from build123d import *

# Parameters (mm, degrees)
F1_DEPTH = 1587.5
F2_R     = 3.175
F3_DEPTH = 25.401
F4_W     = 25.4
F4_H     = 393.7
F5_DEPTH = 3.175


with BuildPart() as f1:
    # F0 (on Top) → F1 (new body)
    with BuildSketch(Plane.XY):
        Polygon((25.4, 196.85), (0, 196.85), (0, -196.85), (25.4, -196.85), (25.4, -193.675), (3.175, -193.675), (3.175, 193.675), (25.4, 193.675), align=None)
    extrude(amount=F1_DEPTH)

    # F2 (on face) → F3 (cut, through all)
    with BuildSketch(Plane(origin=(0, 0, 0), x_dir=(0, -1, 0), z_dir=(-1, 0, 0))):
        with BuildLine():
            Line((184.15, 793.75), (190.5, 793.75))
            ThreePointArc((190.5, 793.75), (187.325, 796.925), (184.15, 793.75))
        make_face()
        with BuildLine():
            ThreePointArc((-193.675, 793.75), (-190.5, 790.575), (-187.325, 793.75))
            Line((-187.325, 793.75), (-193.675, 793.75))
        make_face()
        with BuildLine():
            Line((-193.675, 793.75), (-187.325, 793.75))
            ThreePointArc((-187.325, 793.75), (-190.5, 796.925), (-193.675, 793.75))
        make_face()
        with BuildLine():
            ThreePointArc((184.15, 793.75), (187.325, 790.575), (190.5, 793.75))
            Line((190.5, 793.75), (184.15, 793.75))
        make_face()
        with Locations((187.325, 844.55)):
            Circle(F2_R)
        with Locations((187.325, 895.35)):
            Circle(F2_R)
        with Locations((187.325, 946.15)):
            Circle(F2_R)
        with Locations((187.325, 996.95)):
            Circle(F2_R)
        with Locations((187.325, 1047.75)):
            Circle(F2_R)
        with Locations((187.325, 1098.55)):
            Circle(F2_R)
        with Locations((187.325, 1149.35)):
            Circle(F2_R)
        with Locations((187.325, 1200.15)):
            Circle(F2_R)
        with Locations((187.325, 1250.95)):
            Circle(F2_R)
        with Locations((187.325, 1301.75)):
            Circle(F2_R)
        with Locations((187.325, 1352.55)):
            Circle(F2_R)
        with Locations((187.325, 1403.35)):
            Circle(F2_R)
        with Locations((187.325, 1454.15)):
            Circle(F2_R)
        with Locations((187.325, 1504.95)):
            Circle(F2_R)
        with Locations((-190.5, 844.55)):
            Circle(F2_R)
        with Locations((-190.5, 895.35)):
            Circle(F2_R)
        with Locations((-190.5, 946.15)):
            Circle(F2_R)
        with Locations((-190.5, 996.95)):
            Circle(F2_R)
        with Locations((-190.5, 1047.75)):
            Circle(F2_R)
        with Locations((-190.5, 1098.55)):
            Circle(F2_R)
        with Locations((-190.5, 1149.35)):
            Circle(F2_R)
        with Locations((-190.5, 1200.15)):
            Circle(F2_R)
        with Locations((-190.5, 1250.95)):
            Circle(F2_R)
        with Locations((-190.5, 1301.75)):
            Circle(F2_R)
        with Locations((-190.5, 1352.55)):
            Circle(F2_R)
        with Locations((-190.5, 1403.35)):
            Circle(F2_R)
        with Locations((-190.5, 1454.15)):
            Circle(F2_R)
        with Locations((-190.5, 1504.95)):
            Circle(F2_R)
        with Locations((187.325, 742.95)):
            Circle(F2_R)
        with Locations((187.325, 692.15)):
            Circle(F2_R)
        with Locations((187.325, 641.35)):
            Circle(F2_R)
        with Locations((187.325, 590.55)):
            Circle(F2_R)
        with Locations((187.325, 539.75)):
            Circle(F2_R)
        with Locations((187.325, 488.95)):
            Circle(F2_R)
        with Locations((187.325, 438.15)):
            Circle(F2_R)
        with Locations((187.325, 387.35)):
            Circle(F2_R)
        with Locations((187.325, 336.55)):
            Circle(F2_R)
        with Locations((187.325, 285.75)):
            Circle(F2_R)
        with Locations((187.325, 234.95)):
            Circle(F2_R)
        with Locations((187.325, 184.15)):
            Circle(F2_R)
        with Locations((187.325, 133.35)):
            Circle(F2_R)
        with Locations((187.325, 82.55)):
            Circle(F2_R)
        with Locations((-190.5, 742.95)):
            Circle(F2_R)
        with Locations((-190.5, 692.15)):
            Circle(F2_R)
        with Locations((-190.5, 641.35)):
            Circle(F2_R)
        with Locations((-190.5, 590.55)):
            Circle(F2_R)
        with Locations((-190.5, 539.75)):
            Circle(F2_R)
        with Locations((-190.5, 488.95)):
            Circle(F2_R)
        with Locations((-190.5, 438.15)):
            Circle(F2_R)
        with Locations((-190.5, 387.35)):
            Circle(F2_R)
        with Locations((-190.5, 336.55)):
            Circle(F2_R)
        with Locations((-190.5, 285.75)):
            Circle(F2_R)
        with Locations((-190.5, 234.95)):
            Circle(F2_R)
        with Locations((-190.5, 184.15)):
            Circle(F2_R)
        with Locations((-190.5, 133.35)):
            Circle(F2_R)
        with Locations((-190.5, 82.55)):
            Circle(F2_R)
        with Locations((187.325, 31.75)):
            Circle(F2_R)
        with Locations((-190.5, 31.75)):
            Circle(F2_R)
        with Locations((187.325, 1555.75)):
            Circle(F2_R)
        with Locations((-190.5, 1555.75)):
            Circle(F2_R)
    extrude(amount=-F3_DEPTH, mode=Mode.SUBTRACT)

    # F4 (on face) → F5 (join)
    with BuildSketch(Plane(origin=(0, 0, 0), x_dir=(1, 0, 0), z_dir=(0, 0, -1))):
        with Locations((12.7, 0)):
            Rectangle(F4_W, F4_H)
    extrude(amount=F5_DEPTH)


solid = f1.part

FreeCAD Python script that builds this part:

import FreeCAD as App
import Part
import Sketcher

V = App.Vector
Q = App.Units.Quantity


def add_polygon(sketch, points):
    """Adds a closed chain of lines whose ends are joined by coincident constraints."""
    first, n = sketch.GeometryCount, len(points)
    for a, b in zip(points, points[1:] + points[:1]):
        sketch.addGeometry(Part.LineSegment(App.Vector(*a, 0), App.Vector(*b, 0)), False)
    for i in range(n):
        sketch.addConstraint(Sketcher.Constraint("Coincident", first + i, 2, first + (i + 1) % n, 1))

doc = App.newDocument("Part")
body = doc.addObject("PartDesign::Body", "Body")

# Sketch on XY plane
sketch1 = doc.addObject("Sketcher::SketchObject", "Sketch")
body.addObject(sketch1)
sketch1.AttachmentSupport = (doc.XY_Plane, [""])
sketch1.MapMode = "FlatFace"
add_polygon(sketch1, [(25.4, 196.8), (0, 196.8), (0, -196.8), (25.4, -196.8), (25.4, -193.7), (3.2, -193.7), (3.2, 193.7), (25.4, 193.7)])  # lines 0-7
sketch1.addConstraint(Sketcher.Constraint("Horizontal", 0))
sketch1.addConstraint(Sketcher.Constraint("Vertical", 1))
sketch1.addConstraint(Sketcher.Constraint("Horizontal", 2))
sketch1.addConstraint(Sketcher.Constraint("Vertical", 3))
sketch1.addConstraint(Sketcher.Constraint("Horizontal", 4))
sketch1.addConstraint(Sketcher.Constraint("Vertical", 5))
sketch1.addConstraint(Sketcher.Constraint("Horizontal", 6))
sketch1.addConstraint(Sketcher.Constraint("Vertical", 7))
sketch1.addConstraint(Sketcher.Constraint("Symmetric", 0, 2, 1, 2, -1, 1))
sketch1.addConstraint(Sketcher.Constraint("Symmetric", 3, 2, 6, 2, -1))
sketch1.addConstraint(Sketcher.Constraint("DistanceX", 0, 2, 0, 1, Q("1 in")))
sketch1.addConstraint(Sketcher.Constraint("DistanceY", 1, 2, 1, 1, Q("15.5 in")))
sketch1.addConstraint(Sketcher.Constraint("DistanceY", 5, 1, 5, 2, Q("15.25 in")))
sketch1.addConstraint(Sketcher.Constraint("DistanceX", 4, 2, 4, 1, Q("0.875 in")))
pad1 = doc.addObject("PartDesign::Pad", "Pad")
body.addObject(pad1)
pad1.Profile = sketch1
pad1.Length = Q("62.5 in")

# Sketch on YZ plane
sketch2 = doc.addObject("Sketcher::SketchObject", "Sketch001")
body.addObject(sketch2)
sketch2.AttachmentSupport = (doc.YZ_Plane, [""])
sketch2.MapMode = "FlatFace"
sketch2.addGeometry(Part.Circle(V(-187.3, 793.8, 0), V(0, 0, 1), 3.2), False)
sketch2.addGeometry(Part.Circle(V(190.5, 793.8, 0), V(0, 0, 1), 3.2), False)
sketch2.addGeometry(Part.Circle(V(-187.3, 844.5, 0), V(0, 0, 1), 3.2), False)
sketch2.addGeometry(Part.Circle(V(-187.3, 895.4, 0), V(0, 0, 1), 3.2), False)
sketch2.addGeometry(Part.Circle(V(-187.3, 946.1, 0), V(0, 0, 1), 3.2), False)
sketch2.addGeometry(Part.Circle(V(-187.3, 997, 0), V(0, 0, 1), 3.2), False)
sketch2.addGeometry(Part.Circle(V(-187.3, 1047.8, 0), V(0, 0, 1), 3.2), False)
sketch2.addGeometry(Part.Circle(V(-187.3, 1098.5, 0), V(0, 0, 1), 3.2), False)
sketch2.addGeometry(Part.Circle(V(-187.3, 1149.3, 0), V(0, 0, 1), 3.2), False)
sketch2.addGeometry(Part.Circle(V(-187.3, 1200.2, 0), V(0, 0, 1), 3.2), False)
sketch2.addGeometry(Part.Circle(V(-187.3, 1251, 0), V(0, 0, 1), 3.2), False)
sketch2.addGeometry(Part.Circle(V(-187.3, 1301.8, 0), V(0, 0, 1), 3.2), False)
sketch2.addGeometry(Part.Circle(V(-187.3, 1352.5, 0), V(0, 0, 1), 3.2), False)
sketch2.addGeometry(Part.Circle(V(-187.3, 1403.3, 0), V(0, 0, 1), 3.2), False)
sketch2.addGeometry(Part.Circle(V(-187.3, 1454.2, 0), V(0, 0, 1), 3.2), False)
sketch2.addGeometry(Part.Circle(V(-187.3, 1505, 0), V(0, 0, 1), 3.2), False)
sketch2.addGeometry(Part.Circle(V(190.5, 844.5, 0), V(0, 0, 1), 3.2), False)
sketch2.addGeometry(Part.Circle(V(190.5, 895.4, 0), V(0, 0, 1), 3.2), False)
sketch2.addGeometry(Part.Circle(V(190.5, 946.1, 0), V(0, 0, 1), 3.2), False)
sketch2.addGeometry(Part.Circle(V(190.5, 997, 0), V(0, 0, 1), 3.2), False)
sketch2.addGeometry(Part.Circle(V(190.5, 1047.8, 0), V(0, 0, 1), 3.2), False)
sketch2.addGeometry(Part.Circle(V(190.5, 1098.5, 0), V(0, 0, 1), 3.2), False)
sketch2.addGeometry(Part.Circle(V(190.5, 1149.3, 0), V(0, 0, 1), 3.2), False)
sketch2.addGeometry(Part.Circle(V(190.5, 1200.2, 0), V(0, 0, 1), 3.2), False)
sketch2.addGeometry(Part.Circle(V(190.5, 1251, 0), V(0, 0, 1), 3.2), False)
sketch2.addGeometry(Part.Circle(V(190.5, 1301.8, 0), V(0, 0, 1), 3.2), False)
sketch2.addGeometry(Part.Circle(V(190.5, 1352.5, 0), V(0, 0, 1), 3.2), False)
sketch2.addGeometry(Part.Circle(V(190.5, 1403.3, 0), V(0, 0, 1), 3.2), False)
sketch2.addGeometry(Part.Circle(V(190.5, 1454.2, 0), V(0, 0, 1), 3.2), False)
sketch2.addGeometry(Part.Circle(V(190.5, 1505, 0), V(0, 0, 1), 3.2), False)
sketch2.addGeometry(Part.Circle(V(-187.3, 743, 0), V(0, 0, 1), 3.2), False)
sketch2.addGeometry(Part.Circle(V(-187.3, 692.1, 0), V(0, 0, 1), 3.2), False)
sketch2.addGeometry(Part.Circle(V(-187.3, 641.4, 0), V(0, 0, 1), 3.2), False)
sketch2.addGeometry(Part.Circle(V(-187.3, 590.5, 0), V(0, 0, 1), 3.2), False)
sketch2.addGeometry(Part.Circle(V(-187.3, 539.8, 0), V(0, 0, 1), 3.2), False)
sketch2.addGeometry(Part.Circle(V(-187.3, 488.9, 0), V(0, 0, 1), 3.2), False)
sketch2.addGeometry(Part.Circle(V(-187.3, 438.1, 0), V(0, 0, 1), 3.2), False)
sketch2.addGeometry(Part.Circle(V(-187.3, 387.4, 0), V(0, 0, 1), 3.2), False)
sketch2.addGeometry(Part.Circle(V(-187.3, 336.6, 0), V(0, 0, 1), 3.2), False)
sketch2.addGeometry(Part.Circle(V(-187.3, 285.8, 0), V(0, 0, 1), 3.2), False)
sketch2.addGeometry(Part.Circle(V(-187.3, 234.9, 0), V(0, 0, 1), 3.2), False)
sketch2.addGeometry(Part.Circle(V(-187.3, 184.2, 0), V(0, 0, 1), 3.2), False)
sketch2.addGeometry(Part.Circle(V(-187.3, 133.3, 0), V(0, 0, 1), 3.2), False)
sketch2.addGeometry(Part.Circle(V(-187.3, 82.5, 0), V(0, 0, 1), 3.2), False)
sketch2.addGeometry(Part.Circle(V(190.5, 743, 0), V(0, 0, 1), 3.2), False)
sketch2.addGeometry(Part.Circle(V(190.5, 692.1, 0), V(0, 0, 1), 3.2), False)
sketch2.addGeometry(Part.Circle(V(190.5, 641.4, 0), V(0, 0, 1), 3.2), False)
sketch2.addGeometry(Part.Circle(V(190.5, 590.5, 0), V(0, 0, 1), 3.2), False)
sketch2.addGeometry(Part.Circle(V(190.5, 539.8, 0), V(0, 0, 1), 3.2), False)
sketch2.addGeometry(Part.Circle(V(190.5, 488.9, 0), V(0, 0, 1), 3.2), False)
sketch2.addGeometry(Part.Circle(V(190.5, 438.1, 0), V(0, 0, 1), 3.2), False)
sketch2.addGeometry(Part.Circle(V(190.5, 387.4, 0), V(0, 0, 1), 3.2), False)
sketch2.addGeometry(Part.Circle(V(190.5, 336.6, 0), V(0, 0, 1), 3.2), False)
sketch2.addGeometry(Part.Circle(V(190.5, 285.8, 0), V(0, 0, 1), 3.2), False)
sketch2.addGeometry(Part.Circle(V(190.5, 234.9, 0), V(0, 0, 1), 3.2), False)
sketch2.addGeometry(Part.Circle(V(190.5, 184.2, 0), V(0, 0, 1), 3.2), False)
sketch2.addGeometry(Part.Circle(V(190.5, 133.3, 0), V(0, 0, 1), 3.2), False)
sketch2.addGeometry(Part.Circle(V(190.5, 82.5, 0), V(0, 0, 1), 3.2), False)
sketch2.addGeometry(Part.Circle(V(-187.3, 31.8, 0), V(0, 0, 1), 3.2), False)
sketch2.addGeometry(Part.Circle(V(190.5, 31.8, 0), V(0, 0, 1), 3.2), False)
sketch2.addGeometry(Part.Circle(V(-187.3, 1555.8, 0), V(0, 0, 1), 3.2), False)
sketch2.addGeometry(Part.Circle(V(190.5, 1555.8, 0), V(0, 0, 1), 3.2), False)
sketch2.addConstraint(Sketcher.Constraint("Equal", 0, 1))
sketch2.addConstraint(Sketcher.Constraint("Equal", 1, 2))
sketch2.addConstraint(Sketcher.Constraint("Equal", 2, 3))
sketch2.addConstraint(Sketcher.Constraint("Equal", 3, 4))
sketch2.addConstraint(Sketcher.Constraint("Equal", 4, 5))
sketch2.addConstraint(Sketcher.Constraint("Equal", 5, 6))
sketch2.addConstraint(Sketcher.Constraint("Equal", 6, 7))
sketch2.addConstraint(Sketcher.Constraint("Equal", 7, 8))
sketch2.addConstraint(Sketcher.Constraint("Equal", 8, 9))
sketch2.addConstraint(Sketcher.Constraint("Equal", 9, 10))
sketch2.addConstraint(Sketcher.Constraint("Equal", 10, 11))
sketch2.addConstraint(Sketcher.Constraint("Equal", 11, 12))
sketch2.addConstraint(Sketcher.Constraint("Equal", 12, 13))
sketch2.addConstraint(Sketcher.Constraint("Equal", 13, 14))
sketch2.addConstraint(Sketcher.Constraint("Equal", 14, 15))
sketch2.addConstraint(Sketcher.Constraint("Equal", 15, 16))
sketch2.addConstraint(Sketcher.Constraint("Equal", 16, 17))
sketch2.addConstraint(Sketcher.Constraint("Equal", 17, 18))
sketch2.addConstraint(Sketcher.Constraint("Equal", 18, 19))
sketch2.addConstraint(Sketcher.Constraint("Equal", 19, 20))
sketch2.addConstraint(Sketcher.Constraint("Equal", 20, 21))
sketch2.addConstraint(Sketcher.Constraint("Equal", 21, 22))
sketch2.addConstraint(Sketcher.Constraint("Equal", 22, 23))
sketch2.addConstraint(Sketcher.Constraint("Equal", 23, 24))
sketch2.addConstraint(Sketcher.Constraint("Equal", 24, 25))
sketch2.addConstraint(Sketcher.Constraint("Equal", 25, 26))
sketch2.addConstraint(Sketcher.Constraint("Equal", 26, 27))
sketch2.addConstraint(Sketcher.Constraint("Equal", 27, 28))
sketch2.addConstraint(Sketcher.Constraint("Equal", 28, 29))
sketch2.addConstraint(Sketcher.Constraint("Equal", 29, 30))
sketch2.addConstraint(Sketcher.Constraint("Equal", 30, 31))
sketch2.addConstraint(Sketcher.Constraint("Equal", 31, 32))
sketch2.addConstraint(Sketcher.Constraint("Equal", 32, 33))
sketch2.addConstraint(Sketcher.Constraint("Equal", 33, 34))
sketch2.addConstraint(Sketcher.Constraint("Equal", 34, 35))
sketch2.addConstraint(Sketcher.Constraint("Equal", 35, 36))
sketch2.addConstraint(Sketcher.Constraint("Equal", 36, 37))
sketch2.addConstraint(Sketcher.Constraint("Equal", 37, 38))
sketch2.addConstraint(Sketcher.Constraint("Equal", 38, 39))
sketch2.addConstraint(Sketcher.Constraint("Equal", 39, 40))
sketch2.addConstraint(Sketcher.Constraint("Equal", 40, 41))
sketch2.addConstraint(Sketcher.Constraint("Equal", 41, 42))
sketch2.addConstraint(Sketcher.Constraint("Equal", 42, 43))
sketch2.addConstraint(Sketcher.Constraint("Equal", 43, 44))
sketch2.addConstraint(Sketcher.Constraint("Equal", 44, 45))
sketch2.addConstraint(Sketcher.Constraint("Equal", 45, 46))
sketch2.addConstraint(Sketcher.Constraint("Equal", 46, 47))
sketch2.addConstraint(Sketcher.Constraint("Equal", 47, 48))
sketch2.addConstraint(Sketcher.Constraint("Equal", 48, 49))
sketch2.addConstraint(Sketcher.Constraint("Equal", 49, 50))
sketch2.addConstraint(Sketcher.Constraint("Equal", 50, 51))
sketch2.addConstraint(Sketcher.Constraint("Equal", 51, 52))
sketch2.addConstraint(Sketcher.Constraint("Equal", 52, 53))
sketch2.addConstraint(Sketcher.Constraint("Equal", 53, 54))
sketch2.addConstraint(Sketcher.Constraint("Equal", 54, 55))
sketch2.addConstraint(Sketcher.Constraint("Equal", 55, 56))
sketch2.addConstraint(Sketcher.Constraint("Equal", 56, 57))
sketch2.addConstraint(Sketcher.Constraint("Equal", 57, 58))
sketch2.addConstraint(Sketcher.Constraint("Equal", 58, 59))
sketch2.addConstraint(Sketcher.Constraint("Equal", 59, 60))
sketch2.addConstraint(Sketcher.Constraint("Equal", 60, 61))
sketch2.addConstraint(Sketcher.Constraint("Horizontal", 0, 3, 1, 3))
sketch2.addConstraint(Sketcher.Constraint("Horizontal", 2, 3, 16, 3))
sketch2.addConstraint(Sketcher.Constraint("Horizontal", 3, 3, 17, 3))
sketch2.addConstraint(Sketcher.Constraint("Horizontal", 4, 3, 18, 3))
sketch2.addConstraint(Sketcher.Constraint("Horizontal", 5, 3, 19, 3))
sketch2.addConstraint(Sketcher.Constraint("Horizontal", 6, 3, 20, 3))
sketch2.addConstraint(Sketcher.Constraint("Horizontal", 7, 3, 21, 3))
sketch2.addConstraint(Sketcher.Constraint("Horizontal", 8, 3, 22, 3))
sketch2.addConstraint(Sketcher.Constraint("Horizontal", 9, 3, 23, 3))
sketch2.addConstraint(Sketcher.Constraint("Horizontal", 10, 3, 24, 3))
sketch2.addConstraint(Sketcher.Constraint("Horizontal", 11, 3, 25, 3))
sketch2.addConstraint(Sketcher.Constraint("Horizontal", 12, 3, 26, 3))
sketch2.addConstraint(Sketcher.Constraint("Horizontal", 13, 3, 27, 3))
sketch2.addConstraint(Sketcher.Constraint("Horizontal", 14, 3, 28, 3))
sketch2.addConstraint(Sketcher.Constraint("Horizontal", 15, 3, 29, 3))
sketch2.addConstraint(Sketcher.Constraint("Horizontal", 30, 3, 44, 3))
sketch2.addConstraint(Sketcher.Constraint("Horizontal", 31, 3, 45, 3))
sketch2.addConstraint(Sketcher.Constraint("Horizontal", 32, 3, 46, 3))
sketch2.addConstraint(Sketcher.Constraint("Horizontal", 33, 3, 47, 3))
sketch2.addConstraint(Sketcher.Constraint("Horizontal", 34, 3, 48, 3))
sketch2.addConstraint(Sketcher.Constraint("Horizontal", 35, 3, 49, 3))
sketch2.addConstraint(Sketcher.Constraint("Horizontal", 36, 3, 50, 3))
sketch2.addConstraint(Sketcher.Constraint("Horizontal", 37, 3, 51, 3))
sketch2.addConstraint(Sketcher.Constraint("Horizontal", 38, 3, 52, 3))
sketch2.addConstraint(Sketcher.Constraint("Horizontal", 39, 3, 53, 3))
sketch2.addConstraint(Sketcher.Constraint("Horizontal", 40, 3, 54, 3))
sketch2.addConstraint(Sketcher.Constraint("Horizontal", 41, 3, 55, 3))
sketch2.addConstraint(Sketcher.Constraint("Horizontal", 42, 3, 56, 3))
sketch2.addConstraint(Sketcher.Constraint("Horizontal", 43, 3, 57, 3))
sketch2.addConstraint(Sketcher.Constraint("Horizontal", 58, 3, 59, 3))
sketch2.addConstraint(Sketcher.Constraint("Horizontal", 60, 3, 61, 3))
sketch2.addConstraint(Sketcher.Constraint("Vertical", 0, 3, 2, 3))
sketch2.addConstraint(Sketcher.Constraint("Vertical", 2, 3, 3, 3))
sketch2.addConstraint(Sketcher.Constraint("Vertical", 3, 3, 4, 3))
sketch2.addConstraint(Sketcher.Constraint("Vertical", 4, 3, 5, 3))
sketch2.addConstraint(Sketcher.Constraint("Vertical", 5, 3, 6, 3))
sketch2.addConstraint(Sketcher.Constraint("Vertical", 6, 3, 7, 3))
sketch2.addConstraint(Sketcher.Constraint("Vertical", 7, 3, 8, 3))
sketch2.addConstraint(Sketcher.Constraint("Vertical", 8, 3, 9, 3))
sketch2.addConstraint(Sketcher.Constraint("Vertical", 9, 3, 10, 3))
sketch2.addConstraint(Sketcher.Constraint("Vertical", 10, 3, 11, 3))
sketch2.addConstraint(Sketcher.Constraint("Vertical", 11, 3, 12, 3))
sketch2.addConstraint(Sketcher.Constraint("Vertical", 12, 3, 13, 3))
sketch2.addConstraint(Sketcher.Constraint("Vertical", 13, 3, 14, 3))
sketch2.addConstraint(Sketcher.Constraint("Vertical", 14, 3, 15, 3))
sketch2.addConstraint(Sketcher.Constraint("Vertical", 1, 3, 16, 3))
sketch2.addConstraint(Sketcher.Constraint("Vertical", 16, 3, 17, 3))
sketch2.addConstraint(Sketcher.Constraint("Vertical", 17, 3, 18, 3))
sketch2.addConstraint(Sketcher.Constraint("Vertical", 18, 3, 19, 3))
sketch2.addConstraint(Sketcher.Constraint("Vertical", 19, 3, 20, 3))
sketch2.addConstraint(Sketcher.Constraint("Vertical", 20, 3, 21, 3))
sketch2.addConstraint(Sketcher.Constraint("Vertical", 21, 3, 22, 3))
sketch2.addConstraint(Sketcher.Constraint("Vertical", 22, 3, 23, 3))
sketch2.addConstraint(Sketcher.Constraint("Vertical", 23, 3, 24, 3))
sketch2.addConstraint(Sketcher.Constraint("Vertical", 24, 3, 25, 3))
sketch2.addConstraint(Sketcher.Constraint("Vertical", 25, 3, 26, 3))
sketch2.addConstraint(Sketcher.Constraint("Vertical", 26, 3, 27, 3))
sketch2.addConstraint(Sketcher.Constraint("Vertical", 27, 3, 28, 3))
sketch2.addConstraint(Sketcher.Constraint("Vertical", 28, 3, 29, 3))
sketch2.addConstraint(Sketcher.Constraint("Vertical", 15, 3, 30, 3))
sketch2.addConstraint(Sketcher.Constraint("Vertical", 30, 3, 31, 3))
sketch2.addConstraint(Sketcher.Constraint("Vertical", 31, 3, 32, 3))
sketch2.addConstraint(Sketcher.Constraint("Vertical", 32, 3, 33, 3))
sketch2.addConstraint(Sketcher.Constraint("Vertical", 33, 3, 34, 3))
sketch2.addConstraint(Sketcher.Constraint("Vertical", 34, 3, 35, 3))
sketch2.addConstraint(Sketcher.Constraint("Vertical", 35, 3, 36, 3))
sketch2.addConstraint(Sketcher.Constraint("Vertical", 36, 3, 37, 3))
sketch2.addConstraint(Sketcher.Constraint("Vertical", 37, 3, 38, 3))
sketch2.addConstraint(Sketcher.Constraint("Vertical", 38, 3, 39, 3))
sketch2.addConstraint(Sketcher.Constraint("Vertical", 39, 3, 40, 3))
sketch2.addConstraint(Sketcher.Constraint("Vertical", 40, 3, 41, 3))
sketch2.addConstraint(Sketcher.Constraint("Vertical", 41, 3, 42, 3))
sketch2.addConstraint(Sketcher.Constraint("Vertical", 42, 3, 43, 3))
sketch2.addConstraint(Sketcher.Constraint("Vertical", 29, 3, 44, 3))
sketch2.addConstraint(Sketcher.Constraint("Vertical", 44, 3, 45, 3))
sketch2.addConstraint(Sketcher.Constraint("Vertical", 45, 3, 46, 3))
sketch2.addConstraint(Sketcher.Constraint("Vertical", 46, 3, 47, 3))
sketch2.addConstraint(Sketcher.Constraint("Vertical", 47, 3, 48, 3))
sketch2.addConstraint(Sketcher.Constraint("Vertical", 48, 3, 49, 3))
sketch2.addConstraint(Sketcher.Constraint("Vertical", 49, 3, 50, 3))
sketch2.addConstraint(Sketcher.Constraint("Vertical", 50, 3, 51, 3))
sketch2.addConstraint(Sketcher.Constraint("Vertical", 51, 3, 52, 3))
sketch2.addConstraint(Sketcher.Constraint("Vertical", 52, 3, 53, 3))
sketch2.addConstraint(Sketcher.Constraint("Vertical", 53, 3, 54, 3))
sketch2.addConstraint(Sketcher.Constraint("Vertical", 54, 3, 55, 3))
sketch2.addConstraint(Sketcher.Constraint("Vertical", 55, 3, 56, 3))
sketch2.addConstraint(Sketcher.Constraint("Vertical", 56, 3, 57, 3))
sketch2.addConstraint(Sketcher.Constraint("Vertical", 43, 3, 58, 3))
sketch2.addConstraint(Sketcher.Constraint("Vertical", 57, 3, 59, 3))
sketch2.addConstraint(Sketcher.Constraint("Vertical", 58, 3, 60, 3))
sketch2.addConstraint(Sketcher.Constraint("Vertical", 59, 3, 61, 3))
sketch2.addConstraint(Sketcher.Constraint("Diameter", 0, Q("0.25 in")))
sketch2.addConstraint(Sketcher.Constraint("DistanceX", -1, 1, 1, 3, Q("7.5 in")))
sketch2.addConstraint(Sketcher.Constraint("DistanceY", -1, 1, 0, 3, Q("31.25 in")))
sketch2.addConstraint(Sketcher.Constraint("DistanceY", -1, 1, 2, 3, Q("33.25 in")))
sketch2.addConstraint(Sketcher.Constraint("DistanceY", -1, 1, 3, 3, Q("35.25 in")))
sketch2.addConstraint(Sketcher.Constraint("DistanceY", -1, 1, 4, 3, Q("37.25 in")))
sketch2.addConstraint(Sketcher.Constraint("DistanceY", -1, 1, 5, 3, Q("39.25 in")))
sketch2.addConstraint(Sketcher.Constraint("DistanceY", -1, 1, 6, 3, Q("41.25 in")))
sketch2.addConstraint(Sketcher.Constraint("DistanceY", -1, 1, 7, 3, Q("43.25 in")))
sketch2.addConstraint(Sketcher.Constraint("DistanceY", -1, 1, 8, 3, Q("45.25 in")))
sketch2.addConstraint(Sketcher.Constraint("DistanceY", -1, 1, 9, 3, Q("47.25 in")))
sketch2.addConstraint(Sketcher.Constraint("DistanceY", -1, 1, 10, 3, Q("49.25 in")))
sketch2.addConstraint(Sketcher.Constraint("DistanceY", -1, 1, 11, 3, Q("51.25 in")))
sketch2.addConstraint(Sketcher.Constraint("DistanceY", -1, 1, 12, 3, Q("53.25 in")))
sketch2.addConstraint(Sketcher.Constraint("DistanceY", -1, 1, 13, 3, Q("55.25 in")))
sketch2.addConstraint(Sketcher.Constraint("DistanceY", -1, 1, 14, 3, Q("57.25 in")))
sketch2.addConstraint(Sketcher.Constraint("DistanceY", -1, 1, 15, 3, Q("59.25 in")))
sketch2.addConstraint(Sketcher.Constraint("DistanceY", -1, 1, 30, 3, Q("29.25 in")))
sketch2.addConstraint(Sketcher.Constraint("DistanceY", -1, 1, 31, 3, Q("27.25 in")))
sketch2.addConstraint(Sketcher.Constraint("DistanceY", -1, 1, 32, 3, Q("25.25 in")))
sketch2.addConstraint(Sketcher.Constraint("DistanceY", -1, 1, 33, 3, Q("23.25 in")))
sketch2.addConstraint(Sketcher.Constraint("DistanceY", -1, 1, 34, 3, Q("21.25 in")))
sketch2.addConstraint(Sketcher.Constraint("DistanceY", -1, 1, 35, 3, Q("19.25 in")))
sketch2.addConstraint(Sketcher.Constraint("DistanceY", -1, 1, 36, 3, Q("17.25 in")))
sketch2.addConstraint(Sketcher.Constraint("DistanceY", -1, 1, 37, 3, Q("15.25 in")))
sketch2.addConstraint(Sketcher.Constraint("DistanceY", -1, 1, 38, 3, Q("13.25 in")))
sketch2.addConstraint(Sketcher.Constraint("DistanceY", -1, 1, 39, 3, Q("11.25 in")))
sketch2.addConstraint(Sketcher.Constraint("DistanceY", -1, 1, 40, 3, Q("9.25 in")))
sketch2.addConstraint(Sketcher.Constraint("DistanceY", -1, 1, 41, 3, Q("7.25 in")))
sketch2.addConstraint(Sketcher.Constraint("DistanceY", -1, 1, 42, 3, Q("5.25 in")))
sketch2.addConstraint(Sketcher.Constraint("DistanceY", -1, 1, 43, 3, Q("3.25 in")))
sketch2.addConstraint(Sketcher.Constraint("DistanceY", -1, 1, 58, 3, Q("1.25 in")))
sketch2.addConstraint(Sketcher.Constraint("DistanceY", -1, 1, 60, 3, Q("61.25 in")))
sketch2.addConstraint(Sketcher.Constraint("DistanceX", 0, 3, -1, 1, Q("7.375 in")))
pocket1 = doc.addObject("PartDesign::Pocket", "Pocket")
body.addObject(pocket1)
pocket1.Profile = sketch2
pocket1.Type = "ThroughAll"
pocket1.Reversed = True

# Sketch on XY plane
sketch3 = doc.addObject("Sketcher::SketchObject", "Sketch002")
body.addObject(sketch3)
sketch3.AttachmentSupport = (doc.XY_Plane, [""])
sketch3.MapMode = "FlatFace"
add_polygon(sketch3, [(0, -197), (0, 197), (25, 197), (25, -197)])  # lines 0-3
sketch3.addConstraint(Sketcher.Constraint("Vertical", 0))
sketch3.addConstraint(Sketcher.Constraint("Horizontal", 1))
sketch3.addConstraint(Sketcher.Constraint("Vertical", 2))
sketch3.addConstraint(Sketcher.Constraint("Horizontal", 3))
sketch3.addConstraint(Sketcher.Constraint("Symmetric", 0, 2, 3, 2, -1, 1))
sketch3.addConstraint(Sketcher.Constraint("DistanceX", 1, 1, 1, 2, Q("1 in")))
sketch3.addConstraint(Sketcher.Constraint("DistanceY", 0, 1, 0, 2, Q("15.5 in")))
pad2 = doc.addObject("PartDesign::Pad", "Pad001")
body.addObject(pad2)
pad2.Profile = sketch3
pad2.Length = Q("0.125 in")
pad2.Reversed = True

doc.recompute()
